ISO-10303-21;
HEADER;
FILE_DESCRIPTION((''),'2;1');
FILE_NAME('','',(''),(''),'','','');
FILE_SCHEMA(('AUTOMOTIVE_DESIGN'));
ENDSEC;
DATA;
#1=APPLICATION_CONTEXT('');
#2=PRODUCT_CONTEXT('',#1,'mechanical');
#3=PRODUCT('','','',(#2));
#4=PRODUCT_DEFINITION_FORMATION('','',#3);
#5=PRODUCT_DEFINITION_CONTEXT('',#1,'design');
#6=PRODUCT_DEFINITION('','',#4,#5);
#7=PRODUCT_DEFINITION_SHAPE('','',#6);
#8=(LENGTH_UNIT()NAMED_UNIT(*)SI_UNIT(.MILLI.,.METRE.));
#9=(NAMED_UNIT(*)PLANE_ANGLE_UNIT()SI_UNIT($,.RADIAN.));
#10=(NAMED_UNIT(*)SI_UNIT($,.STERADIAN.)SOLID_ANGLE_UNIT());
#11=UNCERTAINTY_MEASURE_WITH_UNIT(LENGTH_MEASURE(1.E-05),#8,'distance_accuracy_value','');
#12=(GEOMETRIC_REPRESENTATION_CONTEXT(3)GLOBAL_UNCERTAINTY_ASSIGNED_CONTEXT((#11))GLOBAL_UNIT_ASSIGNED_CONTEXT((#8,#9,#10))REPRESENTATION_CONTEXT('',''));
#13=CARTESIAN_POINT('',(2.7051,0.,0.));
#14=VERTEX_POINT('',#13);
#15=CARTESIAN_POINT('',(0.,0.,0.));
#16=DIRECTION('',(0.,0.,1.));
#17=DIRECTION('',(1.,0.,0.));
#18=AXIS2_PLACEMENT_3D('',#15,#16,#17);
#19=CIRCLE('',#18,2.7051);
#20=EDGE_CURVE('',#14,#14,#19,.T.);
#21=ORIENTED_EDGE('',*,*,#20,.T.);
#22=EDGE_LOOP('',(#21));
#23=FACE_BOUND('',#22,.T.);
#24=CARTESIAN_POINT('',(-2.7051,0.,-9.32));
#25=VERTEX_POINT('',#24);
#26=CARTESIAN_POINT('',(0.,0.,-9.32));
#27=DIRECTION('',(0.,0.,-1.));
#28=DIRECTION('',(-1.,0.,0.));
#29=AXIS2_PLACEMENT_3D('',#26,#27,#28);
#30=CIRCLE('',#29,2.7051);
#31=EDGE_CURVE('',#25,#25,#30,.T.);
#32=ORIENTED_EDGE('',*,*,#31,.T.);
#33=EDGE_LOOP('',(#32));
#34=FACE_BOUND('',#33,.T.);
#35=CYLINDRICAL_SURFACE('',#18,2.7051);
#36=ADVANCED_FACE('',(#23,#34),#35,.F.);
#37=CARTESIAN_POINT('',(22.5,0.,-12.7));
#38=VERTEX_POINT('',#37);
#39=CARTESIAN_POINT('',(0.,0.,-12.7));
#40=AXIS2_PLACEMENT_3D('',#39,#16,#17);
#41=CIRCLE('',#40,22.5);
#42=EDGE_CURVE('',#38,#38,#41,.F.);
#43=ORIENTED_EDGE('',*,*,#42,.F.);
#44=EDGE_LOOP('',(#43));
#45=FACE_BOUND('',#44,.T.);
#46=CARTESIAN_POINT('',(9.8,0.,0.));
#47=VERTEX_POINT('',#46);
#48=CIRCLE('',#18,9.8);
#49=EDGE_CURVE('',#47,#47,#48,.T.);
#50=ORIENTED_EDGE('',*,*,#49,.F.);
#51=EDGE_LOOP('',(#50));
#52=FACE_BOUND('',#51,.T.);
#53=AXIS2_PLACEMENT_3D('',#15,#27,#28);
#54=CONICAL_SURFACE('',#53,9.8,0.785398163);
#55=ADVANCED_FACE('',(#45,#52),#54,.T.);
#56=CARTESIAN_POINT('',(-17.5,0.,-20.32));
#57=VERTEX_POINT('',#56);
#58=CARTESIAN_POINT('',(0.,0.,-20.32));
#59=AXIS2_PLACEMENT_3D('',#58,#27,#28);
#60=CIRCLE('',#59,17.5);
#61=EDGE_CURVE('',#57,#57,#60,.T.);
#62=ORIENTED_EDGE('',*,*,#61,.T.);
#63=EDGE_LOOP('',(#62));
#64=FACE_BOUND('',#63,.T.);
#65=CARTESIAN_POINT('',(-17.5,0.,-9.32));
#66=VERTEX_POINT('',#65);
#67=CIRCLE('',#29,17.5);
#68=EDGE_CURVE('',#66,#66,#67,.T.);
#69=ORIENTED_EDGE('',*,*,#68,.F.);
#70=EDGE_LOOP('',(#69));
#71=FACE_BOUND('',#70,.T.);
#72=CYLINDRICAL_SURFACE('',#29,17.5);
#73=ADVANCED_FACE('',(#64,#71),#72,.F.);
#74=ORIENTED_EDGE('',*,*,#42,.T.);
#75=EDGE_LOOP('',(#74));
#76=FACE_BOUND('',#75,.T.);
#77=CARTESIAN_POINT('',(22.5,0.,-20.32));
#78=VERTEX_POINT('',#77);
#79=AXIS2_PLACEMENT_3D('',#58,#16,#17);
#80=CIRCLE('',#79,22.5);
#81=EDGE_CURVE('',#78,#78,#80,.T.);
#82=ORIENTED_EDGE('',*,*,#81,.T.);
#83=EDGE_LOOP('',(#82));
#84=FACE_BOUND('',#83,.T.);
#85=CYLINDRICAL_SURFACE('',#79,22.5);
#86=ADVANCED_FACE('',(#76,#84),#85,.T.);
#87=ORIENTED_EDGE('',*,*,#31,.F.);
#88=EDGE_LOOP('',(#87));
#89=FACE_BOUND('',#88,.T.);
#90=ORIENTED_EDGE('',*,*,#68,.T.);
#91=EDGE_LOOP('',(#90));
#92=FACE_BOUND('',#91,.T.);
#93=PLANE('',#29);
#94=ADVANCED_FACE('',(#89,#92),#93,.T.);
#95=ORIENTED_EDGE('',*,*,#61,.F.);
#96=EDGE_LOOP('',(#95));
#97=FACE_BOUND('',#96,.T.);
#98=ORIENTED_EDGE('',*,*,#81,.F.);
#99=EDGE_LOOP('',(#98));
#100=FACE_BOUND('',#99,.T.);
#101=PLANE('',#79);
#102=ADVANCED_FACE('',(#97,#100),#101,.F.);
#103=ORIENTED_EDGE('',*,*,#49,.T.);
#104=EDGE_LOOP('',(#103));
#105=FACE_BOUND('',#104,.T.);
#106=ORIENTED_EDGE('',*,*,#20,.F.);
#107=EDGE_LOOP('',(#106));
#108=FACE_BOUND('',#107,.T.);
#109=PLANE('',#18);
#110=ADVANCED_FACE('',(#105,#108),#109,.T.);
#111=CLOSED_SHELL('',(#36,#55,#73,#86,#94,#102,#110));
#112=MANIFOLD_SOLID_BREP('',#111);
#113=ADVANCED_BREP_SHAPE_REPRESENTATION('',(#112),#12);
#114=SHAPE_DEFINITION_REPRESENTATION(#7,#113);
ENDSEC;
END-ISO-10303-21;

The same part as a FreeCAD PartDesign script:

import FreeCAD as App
import Part
import Sketcher

V = App.Vector


def edges_at(feature, points):
    """Names of the edges that pass closest to the given points."""
    edges = feature.Shape.Edges
    near = lambda p: min(range(len(edges)), key=lambda i: edges[i].distToShape(Part.Vertex(*p))[0])
    return sorted({f"Edge{near(p) + 1}" for p in points})

doc = App.newDocument("Part")
params = doc.addObject("Spreadsheet::Sheet", "Params")
for row, (alias, value) in enumerate([
    ("sketch1_diameter", "45 mm"),
    ("pad1_length", "20.32 mm"),
    ("sketch2_diameter", "35 mm"),
    ("pocket1_length", "11 mm"),
    ("hole_diameter", "5.4102 mm"),
    ("hole_depth", "9.32 mm"),
    ("chamfer_size", "12.7 mm"),
], start=1):
    params.set(f"A{row}", alias)
    params.set(f"B{row}", "=" + value)
    params.setAlias(f"B{row}", alias)

body = doc.addObject("PartDesign::Body", "Body")

sketch1 = doc.addObject("Sketcher::SketchObject", "Sketch")
body.addObject(sketch1)
sketch1.AttachmentSupport = (doc.XY_Plane, [""])
sketch1.MapMode = "FlatFace"
sketch1.addGeometry(Part.Circle(V(0, 0, 0), V(0, 0, 1), 22), False)
sketch1.addConstraint(Sketcher.Constraint("Coincident", 0, 3, -1, 1))
sketch1.addConstraint(Sketcher.Constraint("Diameter", 0, 45.0))
sketch1.setExpression("Constraints[1]", "Params.sketch1_diameter")
pad1 = doc.addObject("PartDesign::Pad", "Pad")
body.addObject(pad1)
pad1.Profile = sketch1
pad1.setExpression("Length", "Params.pad1_length")
pad1.Reversed = True

sketch2 = doc.addObject("Sketcher::SketchObject", "Sketch001")
body.addObject(sketch2)
sketch2.AttachmentSupport = (doc.XY_Plane, [""])
sketch2.MapMode = "FlatFace"
sketch2.AttachmentOffset = App.Placement(V(0, 0, -20.32), App.Rotation())
sketch2.addGeometry(Part.Circle(V(0, 0, 0), V(0, 0, 1), 18), False)
sketch2.addConstraint(Sketcher.Constraint("Coincident", 0, 3, -1, 1))
sketch2.addConstraint(Sketcher.Constraint("Diameter", 0, 35.0))
sketch2.setExpression("Constraints[1]", "Params.sketch2_diameter")
pocket1 = doc.addObject("PartDesign::Pocket", "Pocket")
body.addObject(pocket1)
pocket1.Profile = sketch2
pocket1.setExpression("Length", "Params.pocket1_length")
pocket1.Reversed = True

sketch3 = doc.addObject("Sketcher::SketchObject", "Sketch002")
body.addObject(sketch3)
sketch3.AttachmentSupport = (doc.XY_Plane, [""])
sketch3.MapMode = "FlatFace"
sketch3.addGeometry(Part.Circle(V(0, 0, 0), V(0, 0, 1), 2.7), False)
sketch3.addConstraint(Sketcher.Constraint("Coincident", 0, 3, -1, 1))
sketch3.addConstraint(Sketcher.Constraint("Diameter", 0, 5.4102))
doc.recompute()
hole = doc.addObject("PartDesign::Hole", "Hole")
body.addObject(hole)
hole.Profile = sketch3
hole.ThreadType = "None"
hole.setExpression("Diameter", "Params.hole_diameter")
hole.DepthType = "Dimension"
hole.setExpression("Depth", "Params.hole_depth")
hole.DrillPoint = "Flat"
doc.recompute()

chamfer = doc.addObject("PartDesign::Chamfer", "Chamfer")
body.addObject(chamfer)
chamfer.Base = (hole, edges_at(hole, [(-22.5, 0, 0)]))
chamfer.setExpression("Size", "Params.chamfer_size")

doc.recompute()
